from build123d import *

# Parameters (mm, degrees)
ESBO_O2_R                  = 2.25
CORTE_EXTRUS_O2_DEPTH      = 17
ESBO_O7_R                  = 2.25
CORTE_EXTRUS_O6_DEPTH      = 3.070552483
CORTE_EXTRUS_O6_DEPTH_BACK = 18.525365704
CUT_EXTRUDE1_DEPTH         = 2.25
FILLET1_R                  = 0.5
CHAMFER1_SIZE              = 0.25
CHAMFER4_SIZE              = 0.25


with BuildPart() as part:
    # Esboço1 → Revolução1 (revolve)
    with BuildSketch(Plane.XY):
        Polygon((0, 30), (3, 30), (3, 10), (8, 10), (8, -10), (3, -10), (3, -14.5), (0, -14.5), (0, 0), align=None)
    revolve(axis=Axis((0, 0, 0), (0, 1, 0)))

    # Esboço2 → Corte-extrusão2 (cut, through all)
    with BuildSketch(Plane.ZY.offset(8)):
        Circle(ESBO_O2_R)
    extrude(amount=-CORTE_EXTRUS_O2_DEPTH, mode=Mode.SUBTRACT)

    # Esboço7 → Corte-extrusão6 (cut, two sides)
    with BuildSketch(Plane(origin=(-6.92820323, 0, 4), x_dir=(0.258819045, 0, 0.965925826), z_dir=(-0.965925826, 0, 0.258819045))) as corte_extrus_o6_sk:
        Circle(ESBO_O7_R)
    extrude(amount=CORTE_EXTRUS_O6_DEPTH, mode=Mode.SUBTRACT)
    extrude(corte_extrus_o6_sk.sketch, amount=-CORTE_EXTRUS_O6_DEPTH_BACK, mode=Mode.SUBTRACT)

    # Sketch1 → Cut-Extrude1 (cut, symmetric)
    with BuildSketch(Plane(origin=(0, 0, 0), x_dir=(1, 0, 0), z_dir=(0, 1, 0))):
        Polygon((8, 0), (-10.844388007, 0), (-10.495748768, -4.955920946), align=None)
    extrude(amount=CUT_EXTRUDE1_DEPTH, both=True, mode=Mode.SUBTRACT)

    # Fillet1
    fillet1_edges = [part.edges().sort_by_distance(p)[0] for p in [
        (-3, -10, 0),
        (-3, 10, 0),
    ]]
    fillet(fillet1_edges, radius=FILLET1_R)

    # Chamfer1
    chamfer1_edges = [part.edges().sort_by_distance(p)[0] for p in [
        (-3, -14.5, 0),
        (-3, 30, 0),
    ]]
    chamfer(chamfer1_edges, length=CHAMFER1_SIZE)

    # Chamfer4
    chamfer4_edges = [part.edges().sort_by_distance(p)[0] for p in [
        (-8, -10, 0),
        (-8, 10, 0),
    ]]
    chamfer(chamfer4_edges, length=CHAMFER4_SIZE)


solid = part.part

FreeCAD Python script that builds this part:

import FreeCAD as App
import Part
import Sketcher

V = App.Vector
Q = App.Units.Quantity


def edges_at(feature, points):
    """Names of the edges that pass closest to the given points."""
    edges = feature.Shape.Edges
    near = lambda p: min(range(len(edges)), key=lambda i: edges[i].distToShape(Part.Vertex(*p))[0])
    return sorted({f"Edge{near(p) + 1}" for p in points})

doc = App.newDocument("Part")
body = doc.addObject("PartDesign::Body", "Body")

sketch1 = body.newObject("Sketcher::SketchObject", "Sketch")
sketch1.AttachmentSupport = (doc.getObject("XY_Plane"), [""])
sketch1.MapMode = "FlatFace"
sketch1.addGeometry(Part.LineSegment(V(3, 30, 0), V(0, 30, 0)), False)
sketch1.addGeometry(Part.LineSegment(V(0, 30, 0), V(0, -14.5, 0)), False)
sketch1.addGeometry(Part.LineSegment(V(0, -14.5, 0), V(3, -14.5, 0)), False)
sketch1.addGeometry(Part.LineSegment(V(3, -14.5, 0), V(3, -10, 0)), False)
sketch1.addGeometry(Part.LineSegment(V(3, -10, 0), V(8, -10, 0)), False)
sketch1.addGeometry(Part.LineSegment(V(8, -10, 0), V(8, 10, 0)), False)
sketch1.addGeometry(Part.LineSegment(V(8, 10, 0), V(3, 10, 0)), False)
sketch1.addGeometry(Part.LineSegment(V(3, 10, 0), V(3, 30, 0)), False)
sketch1.addConstraint(Sketcher.Constraint("Coincident", 0, 2, 1, 1))
sketch1.addConstraint(Sketcher.Constraint("Coincident", 1, 2, 2, 1))
sketch1.addConstraint(Sketcher.Constraint("Coincident", 2, 2, 3, 1))
sketch1.addConstraint(Sketcher.Constraint("Coincident", 3, 2, 4, 1))
sketch1.addConstraint(Sketcher.Constraint("Coincident", 4, 2, 5, 1))
sketch1.addConstraint(Sketcher.Constraint("Coincident", 5, 2, 6, 1))
sketch1.addConstraint(Sketcher.Constraint("Coincident", 6, 2, 7, 1))
sketch1.addConstraint(Sketcher.Constraint("Coincident", 7, 2, 0, 1))
sketch1.addConstraint(Sketcher.Constraint("Horizontal", 0))
sketch1.addConstraint(Sketcher.Constraint("Vertical", 1))
sketch1.addConstraint(Sketcher.Constraint("Horizontal", 2))
sketch1.addConstraint(Sketcher.Constraint("Vertical", 3))
sketch1.addConstraint(Sketcher.Constraint("Horizontal", 4))
sketch1.addConstraint(Sketcher.Constraint("Vertical", 5))
sketch1.addConstraint(Sketcher.Constraint("Horizontal", 6))
sketch1.addConstraint(Sketcher.Constraint("Vertical", 7))
sketch1.addConstraint(Sketcher.Constraint("Symmetric", 3, 2, 6, 2, -1))
sketch1.addConstraint(Sketcher.Constraint("PointOnObject", 0, 2, -2))
sketch1.addConstraint(Sketcher.Constraint("Equal", 5, 7))
sketch1.addConstraint(Sketcher.Constraint("DistanceX", 0, 2, 0, 1, 3.0))
sketch1.addConstraint(Sketcher.Constraint("DistanceX", 4, 1, 4, 2, 5.0))
sketch1.addConstraint(Sketcher.Constraint("DistanceY", 5, 1, 5, 2, 20.0))
sketch1.addConstraint(Sketcher.Constraint("DistanceY", 1, 2, 1, 1, 44.5))
revolution = body.newObject("PartDesign::Revolution", "Revolution")
revolution.Profile = sketch1
revolution.ReferenceAxis = (sketch1, ["V_Axis"])
revolution.Angle = 360

sketch2 = body.newObject("Sketcher::SketchObject", "Sketch001")
sketch2.AttachmentSupport = (doc.getObject("YZ_Plane"), [""])
sketch2.MapMode = "FlatFace"
sketch2.AttachmentOffset = App.Placement(V(0, 0, -8), App.Rotation())
sketch2.addGeometry(Part.Circle(V(0, 0, 0), V(0, 0, 1), 2.25), False)
sketch2.addConstraint(Sketcher.Constraint("Coincident", 0, 3, -1, 1))
sketch2.addConstraint(Sketcher.Constraint("Diameter", 0, 4.5))
pocket1 = body.newObject("PartDesign::Pocket", "Pocket")
pocket1.Profile = sketch2
pocket1.Type = "ThroughAll"
pocket1.Reversed = True

sketch3 = body.newObject("Sketcher::SketchObject", "Sketch002")
sketch3.Placement = App.Placement(V(-6.928203, 0, 4), App.Rotation(V(0.258819045, 0, 0.965925826), V(0, 0.999999999, 0), V(-0.965925826, 0, 0.258819045), "ZXY"))
sketch3.addGeometry(Part.Circle(V(0, 0, 0), V(0, 0, 1), 2.25), False)
sketch3.addConstraint(Sketcher.Constraint("Coincident", 0, 3, -1, 1))
sketch3.addConstraint(Sketcher.Constraint("Diameter", 0, 4.5))
pocket2 = body.newObject("PartDesign::Pocket", "Pocket001")
pocket2.Profile = sketch3
pocket2.Type = "ThroughAll"
pocket2.Midplane = True

sketch4 = body.newObject("Sketcher::SketchObject", "Sketch003")
sketch4.AttachmentSupport = (doc.getObject("XZ_Plane"), [""])
sketch4.MapMode = "FlatFace"
sketch4.addGeometry(Part.LineSegment(V(8, 0, 0), V(-10.844388, 0, 0)), False)
sketch4.addGeometry(Part.LineSegment(V(-10.844388, 0, 0), V(-10.495749, 4.955921, 0)), False)
sketch4.addGeometry(Part.LineSegment(V(-10.495749, 4.955921, 0), V(8, 0, 0)), False)
sketch4.addConstraint(Sketcher.Constraint("Coincident", 0, 2, 1, 1))
sketch4.addConstraint(Sketcher.Constraint("Coincident", 1, 2, 2, 1))
sketch4.addConstraint(Sketcher.Constraint("Coincident", 2, 2, 0, 1))
sketch4.addConstraint(Sketcher.Constraint("Horizontal", 0))
sketch4.addConstraint(Sketcher.Constraint("PointOnObject", 0, 2, -1))
sketch4.addConstraint(Sketcher.Constraint("Angle", 2, Q("-15 deg")))
sketch4.addConstraint(Sketcher.Constraint("DistanceX", -1, 1, 2, 2, 8.0))
sketch4.addConstraint(Sketcher.Constraint("DistanceX", 0, 2, 0, 1, 18.844388))
sketch4.addConstraint(Sketcher.Constraint("Distance", 1, 4.968169))
pocket3 = body.newObject("PartDesign::Pocket", "Pocket002")
pocket3.Profile = sketch4
pocket3.Length = 4.5
pocket3.Midplane = True
doc.recompute()

fillet = body.newObject("PartDesign::Fillet", "Fillet")
fillet.Base = (pocket3, edges_at(pocket3, [(-3, -10, 0), (-3, 10, 0)]))
fillet.Radius = 0.5
doc.recompute()

chamfer = body.newObject("PartDesign::Chamfer", "Chamfer")
chamfer.Base = (fillet, edges_at(fillet, [(-3, -14.5, 0), (-3, 30, 0)]))
chamfer.Size = 0.25
doc.recompute()

chamfer2 = body.newObject("PartDesign::Chamfer", "Chamfer001")
chamfer2.Base = (chamfer, edges_at(chamfer, [(-8, -10, 0), (-8, 10, 0)]))
chamfer2.Size = 0.25

doc.recompute()
